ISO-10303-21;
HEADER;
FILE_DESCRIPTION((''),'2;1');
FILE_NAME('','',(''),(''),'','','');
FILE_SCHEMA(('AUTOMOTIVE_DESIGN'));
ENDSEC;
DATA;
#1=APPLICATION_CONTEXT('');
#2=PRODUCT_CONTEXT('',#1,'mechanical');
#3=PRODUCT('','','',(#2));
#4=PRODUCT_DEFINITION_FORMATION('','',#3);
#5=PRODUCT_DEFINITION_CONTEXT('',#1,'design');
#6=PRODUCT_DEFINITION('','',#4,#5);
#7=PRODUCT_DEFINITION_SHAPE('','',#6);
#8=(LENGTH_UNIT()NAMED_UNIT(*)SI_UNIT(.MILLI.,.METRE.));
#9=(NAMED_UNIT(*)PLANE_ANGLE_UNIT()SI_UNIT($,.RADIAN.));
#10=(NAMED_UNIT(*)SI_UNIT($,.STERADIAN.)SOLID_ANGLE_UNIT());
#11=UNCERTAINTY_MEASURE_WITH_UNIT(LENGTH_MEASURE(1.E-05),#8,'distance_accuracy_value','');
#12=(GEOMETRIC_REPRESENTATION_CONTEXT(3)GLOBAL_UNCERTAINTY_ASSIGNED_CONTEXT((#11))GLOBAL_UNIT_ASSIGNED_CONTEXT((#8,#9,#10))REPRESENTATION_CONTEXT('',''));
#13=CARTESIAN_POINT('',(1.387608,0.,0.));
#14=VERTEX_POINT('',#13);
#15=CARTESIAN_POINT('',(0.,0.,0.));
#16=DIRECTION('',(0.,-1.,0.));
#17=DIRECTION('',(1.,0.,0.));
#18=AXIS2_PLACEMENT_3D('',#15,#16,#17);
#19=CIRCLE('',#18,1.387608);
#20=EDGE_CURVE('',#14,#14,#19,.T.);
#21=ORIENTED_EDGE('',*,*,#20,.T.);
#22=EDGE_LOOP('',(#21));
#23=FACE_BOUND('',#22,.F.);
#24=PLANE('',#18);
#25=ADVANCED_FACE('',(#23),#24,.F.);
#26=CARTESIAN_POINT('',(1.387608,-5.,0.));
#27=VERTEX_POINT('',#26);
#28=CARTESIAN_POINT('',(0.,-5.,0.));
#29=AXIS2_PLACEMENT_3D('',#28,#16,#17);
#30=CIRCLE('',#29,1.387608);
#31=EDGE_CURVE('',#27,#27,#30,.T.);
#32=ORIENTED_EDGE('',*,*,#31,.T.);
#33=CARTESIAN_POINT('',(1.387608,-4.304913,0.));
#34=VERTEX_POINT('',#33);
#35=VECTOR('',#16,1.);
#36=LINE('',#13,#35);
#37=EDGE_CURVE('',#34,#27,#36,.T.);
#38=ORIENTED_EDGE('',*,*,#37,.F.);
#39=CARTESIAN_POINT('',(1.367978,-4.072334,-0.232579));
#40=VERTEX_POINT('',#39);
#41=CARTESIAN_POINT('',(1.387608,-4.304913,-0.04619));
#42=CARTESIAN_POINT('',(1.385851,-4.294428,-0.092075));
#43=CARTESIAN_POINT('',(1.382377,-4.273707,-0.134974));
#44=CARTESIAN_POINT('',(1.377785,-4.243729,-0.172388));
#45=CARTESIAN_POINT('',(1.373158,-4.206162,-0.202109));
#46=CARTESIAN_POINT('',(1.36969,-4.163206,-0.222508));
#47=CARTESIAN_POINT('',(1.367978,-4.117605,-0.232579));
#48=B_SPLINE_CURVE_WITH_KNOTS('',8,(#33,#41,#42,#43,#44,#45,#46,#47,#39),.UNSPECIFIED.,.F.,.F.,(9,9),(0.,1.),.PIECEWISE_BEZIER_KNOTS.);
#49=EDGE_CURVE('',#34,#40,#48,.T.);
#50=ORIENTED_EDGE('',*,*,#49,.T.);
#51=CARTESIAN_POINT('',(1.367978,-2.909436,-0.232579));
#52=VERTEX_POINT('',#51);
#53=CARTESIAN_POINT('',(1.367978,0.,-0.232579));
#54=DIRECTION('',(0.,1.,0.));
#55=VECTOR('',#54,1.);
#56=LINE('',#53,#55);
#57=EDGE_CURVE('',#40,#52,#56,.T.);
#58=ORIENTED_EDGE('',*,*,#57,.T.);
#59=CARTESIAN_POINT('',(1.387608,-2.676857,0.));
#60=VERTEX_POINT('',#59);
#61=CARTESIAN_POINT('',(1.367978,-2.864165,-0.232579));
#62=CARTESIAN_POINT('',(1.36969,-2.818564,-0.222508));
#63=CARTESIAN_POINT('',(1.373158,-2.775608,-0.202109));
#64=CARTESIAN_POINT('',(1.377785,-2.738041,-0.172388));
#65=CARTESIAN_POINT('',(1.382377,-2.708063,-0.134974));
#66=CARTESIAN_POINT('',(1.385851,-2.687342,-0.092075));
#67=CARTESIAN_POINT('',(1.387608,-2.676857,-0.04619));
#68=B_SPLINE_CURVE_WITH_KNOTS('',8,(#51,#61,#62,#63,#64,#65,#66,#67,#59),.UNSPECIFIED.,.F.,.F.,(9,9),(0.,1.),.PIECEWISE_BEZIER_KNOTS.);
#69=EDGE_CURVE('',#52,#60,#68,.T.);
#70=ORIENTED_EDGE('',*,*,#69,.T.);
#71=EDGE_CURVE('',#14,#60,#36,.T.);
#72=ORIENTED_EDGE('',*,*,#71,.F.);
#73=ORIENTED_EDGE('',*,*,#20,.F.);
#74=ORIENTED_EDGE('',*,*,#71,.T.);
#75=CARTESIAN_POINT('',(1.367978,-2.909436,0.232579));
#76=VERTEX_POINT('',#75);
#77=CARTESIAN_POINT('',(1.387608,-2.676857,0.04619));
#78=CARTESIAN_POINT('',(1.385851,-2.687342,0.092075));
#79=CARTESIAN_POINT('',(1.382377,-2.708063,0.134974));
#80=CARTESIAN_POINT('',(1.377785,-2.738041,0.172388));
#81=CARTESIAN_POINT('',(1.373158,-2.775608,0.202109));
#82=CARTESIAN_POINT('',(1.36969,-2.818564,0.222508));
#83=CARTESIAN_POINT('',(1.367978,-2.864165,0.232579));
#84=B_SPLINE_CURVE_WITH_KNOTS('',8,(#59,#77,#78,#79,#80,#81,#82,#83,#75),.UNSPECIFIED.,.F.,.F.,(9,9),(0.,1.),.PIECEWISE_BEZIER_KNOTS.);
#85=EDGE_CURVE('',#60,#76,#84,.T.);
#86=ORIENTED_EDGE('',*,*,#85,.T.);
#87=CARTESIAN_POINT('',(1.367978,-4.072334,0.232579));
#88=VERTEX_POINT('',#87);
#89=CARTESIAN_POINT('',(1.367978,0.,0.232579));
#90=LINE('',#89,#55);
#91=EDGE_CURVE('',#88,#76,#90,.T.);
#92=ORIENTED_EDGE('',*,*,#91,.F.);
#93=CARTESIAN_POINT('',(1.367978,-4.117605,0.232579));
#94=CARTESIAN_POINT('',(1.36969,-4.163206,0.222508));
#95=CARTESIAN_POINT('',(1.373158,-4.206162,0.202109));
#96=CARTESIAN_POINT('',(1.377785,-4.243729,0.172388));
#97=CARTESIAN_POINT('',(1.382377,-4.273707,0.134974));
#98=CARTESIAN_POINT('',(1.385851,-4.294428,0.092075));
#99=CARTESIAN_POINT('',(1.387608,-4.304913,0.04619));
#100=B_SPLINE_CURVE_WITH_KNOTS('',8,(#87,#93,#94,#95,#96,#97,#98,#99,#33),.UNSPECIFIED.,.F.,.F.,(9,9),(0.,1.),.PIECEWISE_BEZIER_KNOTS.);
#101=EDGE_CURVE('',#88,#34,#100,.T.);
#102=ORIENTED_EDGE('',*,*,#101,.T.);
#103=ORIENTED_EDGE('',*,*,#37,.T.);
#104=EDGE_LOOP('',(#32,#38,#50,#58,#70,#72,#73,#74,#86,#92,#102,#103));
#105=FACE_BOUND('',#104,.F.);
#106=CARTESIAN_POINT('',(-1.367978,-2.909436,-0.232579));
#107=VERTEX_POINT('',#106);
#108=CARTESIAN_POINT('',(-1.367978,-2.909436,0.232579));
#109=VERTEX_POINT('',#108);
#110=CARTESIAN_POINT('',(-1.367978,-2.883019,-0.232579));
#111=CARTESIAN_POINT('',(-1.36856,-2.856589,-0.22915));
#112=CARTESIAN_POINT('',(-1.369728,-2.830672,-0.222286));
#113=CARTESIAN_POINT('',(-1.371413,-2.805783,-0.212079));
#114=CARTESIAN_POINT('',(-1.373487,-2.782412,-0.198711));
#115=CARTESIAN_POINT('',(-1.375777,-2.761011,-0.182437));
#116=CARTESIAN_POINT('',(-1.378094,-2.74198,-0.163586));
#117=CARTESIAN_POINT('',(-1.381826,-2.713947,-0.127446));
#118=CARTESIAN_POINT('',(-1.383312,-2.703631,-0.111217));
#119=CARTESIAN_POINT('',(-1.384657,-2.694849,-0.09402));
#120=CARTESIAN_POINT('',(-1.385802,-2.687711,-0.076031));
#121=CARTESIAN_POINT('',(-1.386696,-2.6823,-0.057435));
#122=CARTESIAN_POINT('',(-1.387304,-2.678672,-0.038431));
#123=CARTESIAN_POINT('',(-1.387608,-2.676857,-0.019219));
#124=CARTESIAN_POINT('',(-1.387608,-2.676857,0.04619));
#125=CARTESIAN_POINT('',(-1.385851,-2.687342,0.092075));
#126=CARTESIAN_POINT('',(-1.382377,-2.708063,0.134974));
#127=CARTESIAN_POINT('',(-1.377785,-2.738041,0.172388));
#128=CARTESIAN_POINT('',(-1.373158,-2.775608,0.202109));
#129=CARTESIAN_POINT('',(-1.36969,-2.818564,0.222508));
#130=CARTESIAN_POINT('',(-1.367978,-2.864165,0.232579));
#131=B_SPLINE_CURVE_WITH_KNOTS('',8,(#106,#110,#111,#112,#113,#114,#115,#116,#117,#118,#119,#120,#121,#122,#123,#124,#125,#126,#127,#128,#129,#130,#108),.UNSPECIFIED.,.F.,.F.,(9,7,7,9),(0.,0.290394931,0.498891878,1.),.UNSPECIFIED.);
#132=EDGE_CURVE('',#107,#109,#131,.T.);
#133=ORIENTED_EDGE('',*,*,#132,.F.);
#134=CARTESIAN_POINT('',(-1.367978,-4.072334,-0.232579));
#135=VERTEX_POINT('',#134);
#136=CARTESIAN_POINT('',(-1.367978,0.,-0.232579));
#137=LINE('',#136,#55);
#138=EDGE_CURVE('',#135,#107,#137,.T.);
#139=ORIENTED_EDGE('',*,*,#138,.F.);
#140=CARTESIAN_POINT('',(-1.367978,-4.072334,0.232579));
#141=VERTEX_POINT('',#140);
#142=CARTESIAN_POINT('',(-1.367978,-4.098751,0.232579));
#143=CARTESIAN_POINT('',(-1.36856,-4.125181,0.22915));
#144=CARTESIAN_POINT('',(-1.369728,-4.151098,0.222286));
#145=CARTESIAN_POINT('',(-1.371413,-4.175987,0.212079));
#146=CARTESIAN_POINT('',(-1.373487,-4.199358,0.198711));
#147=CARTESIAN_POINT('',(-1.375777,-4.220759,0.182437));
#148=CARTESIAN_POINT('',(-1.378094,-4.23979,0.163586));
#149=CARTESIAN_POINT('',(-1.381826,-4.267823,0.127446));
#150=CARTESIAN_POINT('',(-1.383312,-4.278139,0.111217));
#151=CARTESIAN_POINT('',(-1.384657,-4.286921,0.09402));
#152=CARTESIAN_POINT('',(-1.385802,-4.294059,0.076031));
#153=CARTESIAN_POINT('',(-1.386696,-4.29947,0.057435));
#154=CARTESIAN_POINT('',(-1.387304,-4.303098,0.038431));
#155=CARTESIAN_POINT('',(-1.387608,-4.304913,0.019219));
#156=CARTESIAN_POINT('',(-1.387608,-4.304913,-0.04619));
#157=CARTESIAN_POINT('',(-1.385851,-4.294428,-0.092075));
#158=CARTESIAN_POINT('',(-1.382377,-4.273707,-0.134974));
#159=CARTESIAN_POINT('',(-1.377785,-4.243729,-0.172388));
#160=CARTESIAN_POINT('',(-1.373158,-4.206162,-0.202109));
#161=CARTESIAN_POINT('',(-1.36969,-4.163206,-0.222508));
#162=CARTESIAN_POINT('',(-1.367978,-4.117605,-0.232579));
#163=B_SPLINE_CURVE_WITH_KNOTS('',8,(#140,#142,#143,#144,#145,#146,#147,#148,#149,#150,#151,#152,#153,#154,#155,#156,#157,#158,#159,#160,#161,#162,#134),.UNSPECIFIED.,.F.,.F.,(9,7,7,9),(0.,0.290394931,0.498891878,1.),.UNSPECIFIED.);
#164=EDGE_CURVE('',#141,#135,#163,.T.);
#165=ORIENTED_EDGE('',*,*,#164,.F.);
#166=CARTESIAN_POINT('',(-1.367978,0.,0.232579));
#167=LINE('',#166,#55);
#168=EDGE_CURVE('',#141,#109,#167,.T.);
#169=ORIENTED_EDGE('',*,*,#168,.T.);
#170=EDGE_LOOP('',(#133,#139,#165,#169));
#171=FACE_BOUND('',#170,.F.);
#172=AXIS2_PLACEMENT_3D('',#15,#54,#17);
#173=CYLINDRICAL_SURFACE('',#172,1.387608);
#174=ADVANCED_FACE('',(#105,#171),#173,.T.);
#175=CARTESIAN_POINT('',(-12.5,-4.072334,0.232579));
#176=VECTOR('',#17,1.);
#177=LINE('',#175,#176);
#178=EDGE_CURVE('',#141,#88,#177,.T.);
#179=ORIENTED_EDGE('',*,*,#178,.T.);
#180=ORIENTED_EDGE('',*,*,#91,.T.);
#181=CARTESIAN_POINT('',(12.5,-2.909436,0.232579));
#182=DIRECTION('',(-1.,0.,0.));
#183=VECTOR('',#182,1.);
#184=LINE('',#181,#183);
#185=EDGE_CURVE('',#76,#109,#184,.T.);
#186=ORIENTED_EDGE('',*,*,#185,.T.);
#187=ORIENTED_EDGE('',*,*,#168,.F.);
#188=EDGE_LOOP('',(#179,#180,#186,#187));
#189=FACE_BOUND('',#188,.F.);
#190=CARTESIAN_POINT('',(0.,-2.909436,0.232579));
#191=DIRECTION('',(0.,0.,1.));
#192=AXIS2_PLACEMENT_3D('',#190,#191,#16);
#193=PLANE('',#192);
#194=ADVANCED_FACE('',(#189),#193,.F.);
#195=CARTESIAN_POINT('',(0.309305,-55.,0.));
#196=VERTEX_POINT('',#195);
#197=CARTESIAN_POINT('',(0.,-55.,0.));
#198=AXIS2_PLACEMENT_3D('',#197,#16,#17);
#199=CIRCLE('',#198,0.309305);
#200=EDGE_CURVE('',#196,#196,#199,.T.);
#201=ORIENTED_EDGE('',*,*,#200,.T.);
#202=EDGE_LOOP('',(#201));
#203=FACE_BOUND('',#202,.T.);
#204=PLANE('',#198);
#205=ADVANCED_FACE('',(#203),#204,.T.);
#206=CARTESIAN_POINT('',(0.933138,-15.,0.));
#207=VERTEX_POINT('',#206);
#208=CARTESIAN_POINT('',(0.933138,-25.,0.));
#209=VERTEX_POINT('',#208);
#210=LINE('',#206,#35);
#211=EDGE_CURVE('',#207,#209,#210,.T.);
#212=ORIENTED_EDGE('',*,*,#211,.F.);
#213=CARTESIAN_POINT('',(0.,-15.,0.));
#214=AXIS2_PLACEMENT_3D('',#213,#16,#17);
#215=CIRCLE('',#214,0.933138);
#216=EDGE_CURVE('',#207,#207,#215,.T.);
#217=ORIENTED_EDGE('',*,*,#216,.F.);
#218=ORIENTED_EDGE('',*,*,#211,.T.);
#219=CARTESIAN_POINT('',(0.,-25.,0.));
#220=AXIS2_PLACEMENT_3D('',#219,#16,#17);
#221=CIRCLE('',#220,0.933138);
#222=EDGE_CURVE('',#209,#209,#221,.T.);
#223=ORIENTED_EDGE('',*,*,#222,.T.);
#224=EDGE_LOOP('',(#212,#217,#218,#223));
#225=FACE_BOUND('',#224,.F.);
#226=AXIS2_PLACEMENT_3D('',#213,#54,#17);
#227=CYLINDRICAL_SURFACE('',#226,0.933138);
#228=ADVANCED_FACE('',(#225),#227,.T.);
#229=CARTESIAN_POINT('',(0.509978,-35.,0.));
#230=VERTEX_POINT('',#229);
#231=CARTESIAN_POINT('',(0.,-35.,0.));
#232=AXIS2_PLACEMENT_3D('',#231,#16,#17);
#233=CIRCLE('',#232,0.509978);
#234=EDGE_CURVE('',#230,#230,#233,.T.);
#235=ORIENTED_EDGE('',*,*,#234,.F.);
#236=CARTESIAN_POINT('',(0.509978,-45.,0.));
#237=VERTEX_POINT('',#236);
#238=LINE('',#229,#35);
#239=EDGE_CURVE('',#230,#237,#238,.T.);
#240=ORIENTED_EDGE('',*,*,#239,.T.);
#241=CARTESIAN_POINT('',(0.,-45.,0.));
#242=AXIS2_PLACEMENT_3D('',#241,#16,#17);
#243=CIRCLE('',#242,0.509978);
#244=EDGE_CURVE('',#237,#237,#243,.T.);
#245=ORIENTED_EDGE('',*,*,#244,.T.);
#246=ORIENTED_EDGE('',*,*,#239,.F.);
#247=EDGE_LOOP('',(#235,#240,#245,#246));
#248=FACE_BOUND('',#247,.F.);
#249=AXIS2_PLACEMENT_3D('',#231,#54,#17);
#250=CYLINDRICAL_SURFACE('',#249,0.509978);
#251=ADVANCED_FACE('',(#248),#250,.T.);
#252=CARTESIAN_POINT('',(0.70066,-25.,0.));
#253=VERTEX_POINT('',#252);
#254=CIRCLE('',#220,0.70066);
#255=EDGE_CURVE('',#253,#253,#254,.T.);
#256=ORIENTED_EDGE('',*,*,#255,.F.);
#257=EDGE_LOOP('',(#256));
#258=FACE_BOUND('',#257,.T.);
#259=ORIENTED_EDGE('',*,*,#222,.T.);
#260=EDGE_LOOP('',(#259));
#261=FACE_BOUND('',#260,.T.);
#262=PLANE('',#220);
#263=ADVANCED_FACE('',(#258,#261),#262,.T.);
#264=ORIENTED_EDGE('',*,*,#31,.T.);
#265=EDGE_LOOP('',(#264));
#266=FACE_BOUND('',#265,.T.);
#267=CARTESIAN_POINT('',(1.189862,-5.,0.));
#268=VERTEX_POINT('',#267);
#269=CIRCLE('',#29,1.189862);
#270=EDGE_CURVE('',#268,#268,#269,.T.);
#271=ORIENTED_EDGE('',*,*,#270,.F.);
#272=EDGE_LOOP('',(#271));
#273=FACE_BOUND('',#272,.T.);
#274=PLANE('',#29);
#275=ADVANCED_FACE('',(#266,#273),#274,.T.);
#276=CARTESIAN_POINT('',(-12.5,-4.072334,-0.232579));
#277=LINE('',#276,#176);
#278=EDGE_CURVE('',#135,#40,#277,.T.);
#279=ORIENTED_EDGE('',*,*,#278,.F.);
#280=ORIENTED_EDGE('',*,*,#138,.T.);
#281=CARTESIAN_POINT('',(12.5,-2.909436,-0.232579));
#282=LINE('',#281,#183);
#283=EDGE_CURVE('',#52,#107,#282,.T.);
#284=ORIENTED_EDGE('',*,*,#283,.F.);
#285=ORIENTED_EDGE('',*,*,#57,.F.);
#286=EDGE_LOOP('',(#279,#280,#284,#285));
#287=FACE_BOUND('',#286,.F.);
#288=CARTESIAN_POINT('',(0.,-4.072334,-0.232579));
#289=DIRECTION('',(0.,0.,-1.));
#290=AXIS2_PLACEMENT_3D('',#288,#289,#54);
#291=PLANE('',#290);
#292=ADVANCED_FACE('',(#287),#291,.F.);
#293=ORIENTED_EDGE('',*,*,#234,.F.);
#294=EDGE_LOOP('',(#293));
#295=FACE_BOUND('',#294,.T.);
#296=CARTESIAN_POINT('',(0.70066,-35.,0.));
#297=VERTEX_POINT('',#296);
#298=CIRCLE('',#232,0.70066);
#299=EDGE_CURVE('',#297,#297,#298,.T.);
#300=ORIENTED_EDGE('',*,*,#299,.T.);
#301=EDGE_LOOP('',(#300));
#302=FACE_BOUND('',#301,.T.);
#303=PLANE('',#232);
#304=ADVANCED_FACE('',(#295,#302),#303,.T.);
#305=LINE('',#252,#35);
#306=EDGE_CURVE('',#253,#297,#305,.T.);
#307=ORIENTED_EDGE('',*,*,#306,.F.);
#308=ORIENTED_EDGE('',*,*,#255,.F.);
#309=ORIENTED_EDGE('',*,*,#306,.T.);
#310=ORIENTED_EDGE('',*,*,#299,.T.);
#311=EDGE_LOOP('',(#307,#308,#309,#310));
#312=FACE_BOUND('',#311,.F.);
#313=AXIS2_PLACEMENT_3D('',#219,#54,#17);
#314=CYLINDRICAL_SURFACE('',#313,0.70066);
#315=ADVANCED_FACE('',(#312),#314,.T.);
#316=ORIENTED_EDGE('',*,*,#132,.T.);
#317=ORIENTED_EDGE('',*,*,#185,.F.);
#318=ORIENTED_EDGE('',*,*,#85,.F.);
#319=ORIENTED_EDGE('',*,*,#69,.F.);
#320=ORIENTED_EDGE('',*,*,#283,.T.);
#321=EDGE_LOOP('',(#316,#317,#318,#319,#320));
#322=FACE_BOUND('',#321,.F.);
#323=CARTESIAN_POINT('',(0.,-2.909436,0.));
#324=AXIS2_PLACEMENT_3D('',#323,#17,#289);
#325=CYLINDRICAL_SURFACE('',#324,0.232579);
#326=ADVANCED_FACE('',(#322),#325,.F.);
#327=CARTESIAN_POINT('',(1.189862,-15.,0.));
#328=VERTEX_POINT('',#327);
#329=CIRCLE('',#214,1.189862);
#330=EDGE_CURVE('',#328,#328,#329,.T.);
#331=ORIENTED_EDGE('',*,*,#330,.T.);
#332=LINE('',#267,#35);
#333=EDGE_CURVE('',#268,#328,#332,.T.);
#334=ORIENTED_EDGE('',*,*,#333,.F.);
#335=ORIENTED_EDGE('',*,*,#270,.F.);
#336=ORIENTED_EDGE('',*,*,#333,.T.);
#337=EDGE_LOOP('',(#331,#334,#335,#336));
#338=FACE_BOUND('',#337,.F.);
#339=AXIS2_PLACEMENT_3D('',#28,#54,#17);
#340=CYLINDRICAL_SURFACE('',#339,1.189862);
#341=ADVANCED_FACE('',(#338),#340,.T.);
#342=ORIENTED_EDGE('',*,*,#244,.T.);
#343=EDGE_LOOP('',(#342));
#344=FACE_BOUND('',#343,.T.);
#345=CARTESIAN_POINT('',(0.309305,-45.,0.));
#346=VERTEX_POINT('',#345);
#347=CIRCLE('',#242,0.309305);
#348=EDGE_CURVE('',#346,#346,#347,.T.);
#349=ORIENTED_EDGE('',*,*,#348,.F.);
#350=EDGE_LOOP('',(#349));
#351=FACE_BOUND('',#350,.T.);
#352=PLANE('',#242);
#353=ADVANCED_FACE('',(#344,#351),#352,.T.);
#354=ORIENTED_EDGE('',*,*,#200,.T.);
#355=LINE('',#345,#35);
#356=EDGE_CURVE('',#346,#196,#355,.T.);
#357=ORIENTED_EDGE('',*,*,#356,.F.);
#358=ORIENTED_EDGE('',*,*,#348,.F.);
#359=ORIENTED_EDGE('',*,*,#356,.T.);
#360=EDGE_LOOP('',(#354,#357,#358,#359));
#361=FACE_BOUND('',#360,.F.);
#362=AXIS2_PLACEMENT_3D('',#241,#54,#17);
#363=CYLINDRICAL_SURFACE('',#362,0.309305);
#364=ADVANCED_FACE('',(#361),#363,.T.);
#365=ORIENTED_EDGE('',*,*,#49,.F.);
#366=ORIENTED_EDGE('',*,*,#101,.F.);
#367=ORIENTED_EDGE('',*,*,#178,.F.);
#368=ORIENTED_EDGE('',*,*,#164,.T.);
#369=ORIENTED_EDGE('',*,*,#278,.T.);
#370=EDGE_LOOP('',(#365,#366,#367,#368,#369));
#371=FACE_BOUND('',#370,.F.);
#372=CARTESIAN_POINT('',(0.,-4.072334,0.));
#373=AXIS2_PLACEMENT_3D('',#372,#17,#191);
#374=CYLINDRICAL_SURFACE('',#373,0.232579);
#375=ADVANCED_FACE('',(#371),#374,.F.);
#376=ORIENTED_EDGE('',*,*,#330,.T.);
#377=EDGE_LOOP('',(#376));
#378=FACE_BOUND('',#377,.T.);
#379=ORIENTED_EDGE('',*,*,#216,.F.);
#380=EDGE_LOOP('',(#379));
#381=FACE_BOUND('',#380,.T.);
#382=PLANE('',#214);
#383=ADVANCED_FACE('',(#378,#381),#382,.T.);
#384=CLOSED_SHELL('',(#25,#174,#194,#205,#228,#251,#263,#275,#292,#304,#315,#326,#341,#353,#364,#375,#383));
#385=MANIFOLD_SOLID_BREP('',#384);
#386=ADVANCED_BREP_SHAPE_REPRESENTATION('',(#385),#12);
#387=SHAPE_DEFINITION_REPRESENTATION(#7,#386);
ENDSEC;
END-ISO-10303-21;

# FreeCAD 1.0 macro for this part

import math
import FreeCAD as App
import Part
import Sketcher

V = App.Vector
Q = App.Units.Quantity

doc = App.newDocument("Part")
body = doc.addObject("PartDesign::Body", "Body")

sketch1 = body.newObject("Sketcher::SketchObject", "Sketch")
sketch1.AttachmentSupport = (doc.getObject("XZ_Plane"), [""])
sketch1.MapMode = "FlatFace"
sketch1.addGeometry(Part.Circle(V(0, 0, 0), V(0, 0, 1), 1.4), False)
sketch1.addConstraint([
    Sketcher.Constraint("Coincident", 0, 3, -1, 1),
    Sketcher.Constraint("Diameter", 0, Q("2.775216 mm")),
])
pad1 = body.newObject("PartDesign::Pad", "Pad")
pad1.Profile = sketch1
pad1.Length = 5

sketch2 = body.newObject("Sketcher::SketchObject", "Sketch001")
sketch2.AttachmentSupport = (doc.getObject("XZ_Plane"), [""])
sketch2.MapMode = "FlatFace"
sketch2.AttachmentOffset = App.Placement(V(0, 0, 5), App.Rotation())
sketch2.addGeometry(Part.Circle(V(0, 0, 0), V(0, 0, 1), 1.2), False)
sketch2.addConstraint([
    Sketcher.Constraint("Coincident", 0, 3, -1, 1),
    Sketcher.Constraint("Diameter", 0, Q("2.379724 mm")),
])
pad2 = body.newObject("PartDesign::Pad", "Pad001")
pad2.Profile = sketch2
pad2.Length = 10

sketch3 = body.newObject("Sketcher::SketchObject", "Sketch002")
sketch3.AttachmentSupport = (doc.getObject("XZ_Plane"), [""])
sketch3.MapMode = "FlatFace"
sketch3.AttachmentOffset = App.Placement(V(0, 0, 15), App.Rotation())
sketch3.addGeometry(Part.Circle(V(0, 0, 0), V(0, 0, 1), 0.9), False)
sketch3.addConstraint([
    Sketcher.Constraint("Coincident", 0, 3, -1, 1),
    Sketcher.Constraint("Diameter", 0, Q("1.866276 mm")),
])
pad3 = body.newObject("PartDesign::Pad", "Pad002")
pad3.Profile = sketch3
pad3.Length = 10

sketch4 = body.newObject("Sketcher::SketchObject", "Sketch003")
sketch4.AttachmentSupport = (doc.getObject("XZ_Plane"), [""])
sketch4.MapMode = "FlatFace"
sketch4.AttachmentOffset = App.Placement(V(0, 0, 25), App.Rotation())
sketch4.addGeometry(Part.Circle(V(0, 0, 0), V(0, 0, 1), 0.7), False)
sketch4.addConstraint([
    Sketcher.Constraint("Coincident", 0, 3, -1, 1),
    Sketcher.Constraint("Diameter", 0, Q("1.40132 mm")),
])
pad4 = body.newObject("PartDesign::Pad", "Pad003")
pad4.Profile = sketch4
pad4.Length = 10

sketch5 = body.newObject("Sketcher::SketchObject", "Sketch004")
sketch5.AttachmentSupport = (doc.getObject("XZ_Plane"), [""])
sketch5.MapMode = "FlatFace"
sketch5.AttachmentOffset = App.Placement(V(0, 0, 35), App.Rotation())
sketch5.addGeometry(Part.Circle(V(0, 0, 0), V(0, 0, 1), 0.5), False)
sketch5.addConstraint([
    Sketcher.Constraint("Coincident", 0, 3, -1, 1),
    Sketcher.Constraint("Diameter", 0, Q("1.019956 mm")),
])
pad5 = body.newObject("PartDesign::Pad", "Pad004")
pad5.Profile = sketch5
pad5.Length = 10

sketch6 = body.newObject("Sketcher::SketchObject", "Sketch005")
sketch6.AttachmentSupport = (doc.getObject("XZ_Plane"), [""])
sketch6.MapMode = "FlatFace"
sketch6.AttachmentOffset = App.Placement(V(0, 0, 45), App.Rotation())
sketch6.addGeometry(Part.Circle(V(0, 0, 0), V(0, 0, 1), 0.31), False)
sketch6.addConstraint([
    Sketcher.Constraint("Coincident", 0, 3, -1, 1),
    Sketcher.Constraint("Diameter", 0, Q("0.61861 mm")),
])
pad6 = body.newObject("PartDesign::Pad", "Pad005")
pad6.Profile = sketch6
pad6.Length = 10

sketch7 = body.newObject("Sketcher::SketchObject", "Sketch006")
sketch7.AttachmentSupport = (doc.getObject("YZ_Plane"), [""])
sketch7.MapMode = "FlatFace"
sketch7.addGeometry([
    Part.LineSegment(V(-2.91, 0.23, 0), V(-4.07, 0.23, 0)),
    Part.ArcOfCircle(Part.Circle(V(-4.07, 0, 0), V(0, 0, 1), 0.23), math.radians(90), math.radians(270)),
    Part.LineSegment(V(-4.07, -0.23, 0), V(-2.91, -0.23, 0)),
    Part.ArcOfCircle(Part.Circle(V(-2.91, 0, 0), V(0, 0, 1), 0.23), math.radians(-90), math.radians(90)),
], False)
sketch7.addConstraint([
    Sketcher.Constraint("Tangent", 0, 2, 1, 1),
    Sketcher.Constraint("Tangent", 1, 2, 2, 1),
    Sketcher.Constraint("Tangent", 2, 2, 3, 1),
    Sketcher.Constraint("Tangent", 3, 2, 0, 1),
    Sketcher.Constraint("Horizontal", 0),
    Sketcher.Constraint("Horizontal", 2),
    Sketcher.Constraint("PointOnObject", 1, 3, -1),
    Sketcher.Constraint("Radius", 1, Q("0.232579 mm")),
    Sketcher.Constraint("DistanceX", 0, 2, 0, 1, Q("1.162898 mm")),
    Sketcher.Constraint("DistanceX", 1, 3, -1, 1, Q("4.072334 mm")),
])
pocket1 = body.newObject("PartDesign::Pocket", "Pocket")
pocket1.Profile = sketch7
pocket1.Length = 25
pocket1.Midplane = True

doc.recompute()
